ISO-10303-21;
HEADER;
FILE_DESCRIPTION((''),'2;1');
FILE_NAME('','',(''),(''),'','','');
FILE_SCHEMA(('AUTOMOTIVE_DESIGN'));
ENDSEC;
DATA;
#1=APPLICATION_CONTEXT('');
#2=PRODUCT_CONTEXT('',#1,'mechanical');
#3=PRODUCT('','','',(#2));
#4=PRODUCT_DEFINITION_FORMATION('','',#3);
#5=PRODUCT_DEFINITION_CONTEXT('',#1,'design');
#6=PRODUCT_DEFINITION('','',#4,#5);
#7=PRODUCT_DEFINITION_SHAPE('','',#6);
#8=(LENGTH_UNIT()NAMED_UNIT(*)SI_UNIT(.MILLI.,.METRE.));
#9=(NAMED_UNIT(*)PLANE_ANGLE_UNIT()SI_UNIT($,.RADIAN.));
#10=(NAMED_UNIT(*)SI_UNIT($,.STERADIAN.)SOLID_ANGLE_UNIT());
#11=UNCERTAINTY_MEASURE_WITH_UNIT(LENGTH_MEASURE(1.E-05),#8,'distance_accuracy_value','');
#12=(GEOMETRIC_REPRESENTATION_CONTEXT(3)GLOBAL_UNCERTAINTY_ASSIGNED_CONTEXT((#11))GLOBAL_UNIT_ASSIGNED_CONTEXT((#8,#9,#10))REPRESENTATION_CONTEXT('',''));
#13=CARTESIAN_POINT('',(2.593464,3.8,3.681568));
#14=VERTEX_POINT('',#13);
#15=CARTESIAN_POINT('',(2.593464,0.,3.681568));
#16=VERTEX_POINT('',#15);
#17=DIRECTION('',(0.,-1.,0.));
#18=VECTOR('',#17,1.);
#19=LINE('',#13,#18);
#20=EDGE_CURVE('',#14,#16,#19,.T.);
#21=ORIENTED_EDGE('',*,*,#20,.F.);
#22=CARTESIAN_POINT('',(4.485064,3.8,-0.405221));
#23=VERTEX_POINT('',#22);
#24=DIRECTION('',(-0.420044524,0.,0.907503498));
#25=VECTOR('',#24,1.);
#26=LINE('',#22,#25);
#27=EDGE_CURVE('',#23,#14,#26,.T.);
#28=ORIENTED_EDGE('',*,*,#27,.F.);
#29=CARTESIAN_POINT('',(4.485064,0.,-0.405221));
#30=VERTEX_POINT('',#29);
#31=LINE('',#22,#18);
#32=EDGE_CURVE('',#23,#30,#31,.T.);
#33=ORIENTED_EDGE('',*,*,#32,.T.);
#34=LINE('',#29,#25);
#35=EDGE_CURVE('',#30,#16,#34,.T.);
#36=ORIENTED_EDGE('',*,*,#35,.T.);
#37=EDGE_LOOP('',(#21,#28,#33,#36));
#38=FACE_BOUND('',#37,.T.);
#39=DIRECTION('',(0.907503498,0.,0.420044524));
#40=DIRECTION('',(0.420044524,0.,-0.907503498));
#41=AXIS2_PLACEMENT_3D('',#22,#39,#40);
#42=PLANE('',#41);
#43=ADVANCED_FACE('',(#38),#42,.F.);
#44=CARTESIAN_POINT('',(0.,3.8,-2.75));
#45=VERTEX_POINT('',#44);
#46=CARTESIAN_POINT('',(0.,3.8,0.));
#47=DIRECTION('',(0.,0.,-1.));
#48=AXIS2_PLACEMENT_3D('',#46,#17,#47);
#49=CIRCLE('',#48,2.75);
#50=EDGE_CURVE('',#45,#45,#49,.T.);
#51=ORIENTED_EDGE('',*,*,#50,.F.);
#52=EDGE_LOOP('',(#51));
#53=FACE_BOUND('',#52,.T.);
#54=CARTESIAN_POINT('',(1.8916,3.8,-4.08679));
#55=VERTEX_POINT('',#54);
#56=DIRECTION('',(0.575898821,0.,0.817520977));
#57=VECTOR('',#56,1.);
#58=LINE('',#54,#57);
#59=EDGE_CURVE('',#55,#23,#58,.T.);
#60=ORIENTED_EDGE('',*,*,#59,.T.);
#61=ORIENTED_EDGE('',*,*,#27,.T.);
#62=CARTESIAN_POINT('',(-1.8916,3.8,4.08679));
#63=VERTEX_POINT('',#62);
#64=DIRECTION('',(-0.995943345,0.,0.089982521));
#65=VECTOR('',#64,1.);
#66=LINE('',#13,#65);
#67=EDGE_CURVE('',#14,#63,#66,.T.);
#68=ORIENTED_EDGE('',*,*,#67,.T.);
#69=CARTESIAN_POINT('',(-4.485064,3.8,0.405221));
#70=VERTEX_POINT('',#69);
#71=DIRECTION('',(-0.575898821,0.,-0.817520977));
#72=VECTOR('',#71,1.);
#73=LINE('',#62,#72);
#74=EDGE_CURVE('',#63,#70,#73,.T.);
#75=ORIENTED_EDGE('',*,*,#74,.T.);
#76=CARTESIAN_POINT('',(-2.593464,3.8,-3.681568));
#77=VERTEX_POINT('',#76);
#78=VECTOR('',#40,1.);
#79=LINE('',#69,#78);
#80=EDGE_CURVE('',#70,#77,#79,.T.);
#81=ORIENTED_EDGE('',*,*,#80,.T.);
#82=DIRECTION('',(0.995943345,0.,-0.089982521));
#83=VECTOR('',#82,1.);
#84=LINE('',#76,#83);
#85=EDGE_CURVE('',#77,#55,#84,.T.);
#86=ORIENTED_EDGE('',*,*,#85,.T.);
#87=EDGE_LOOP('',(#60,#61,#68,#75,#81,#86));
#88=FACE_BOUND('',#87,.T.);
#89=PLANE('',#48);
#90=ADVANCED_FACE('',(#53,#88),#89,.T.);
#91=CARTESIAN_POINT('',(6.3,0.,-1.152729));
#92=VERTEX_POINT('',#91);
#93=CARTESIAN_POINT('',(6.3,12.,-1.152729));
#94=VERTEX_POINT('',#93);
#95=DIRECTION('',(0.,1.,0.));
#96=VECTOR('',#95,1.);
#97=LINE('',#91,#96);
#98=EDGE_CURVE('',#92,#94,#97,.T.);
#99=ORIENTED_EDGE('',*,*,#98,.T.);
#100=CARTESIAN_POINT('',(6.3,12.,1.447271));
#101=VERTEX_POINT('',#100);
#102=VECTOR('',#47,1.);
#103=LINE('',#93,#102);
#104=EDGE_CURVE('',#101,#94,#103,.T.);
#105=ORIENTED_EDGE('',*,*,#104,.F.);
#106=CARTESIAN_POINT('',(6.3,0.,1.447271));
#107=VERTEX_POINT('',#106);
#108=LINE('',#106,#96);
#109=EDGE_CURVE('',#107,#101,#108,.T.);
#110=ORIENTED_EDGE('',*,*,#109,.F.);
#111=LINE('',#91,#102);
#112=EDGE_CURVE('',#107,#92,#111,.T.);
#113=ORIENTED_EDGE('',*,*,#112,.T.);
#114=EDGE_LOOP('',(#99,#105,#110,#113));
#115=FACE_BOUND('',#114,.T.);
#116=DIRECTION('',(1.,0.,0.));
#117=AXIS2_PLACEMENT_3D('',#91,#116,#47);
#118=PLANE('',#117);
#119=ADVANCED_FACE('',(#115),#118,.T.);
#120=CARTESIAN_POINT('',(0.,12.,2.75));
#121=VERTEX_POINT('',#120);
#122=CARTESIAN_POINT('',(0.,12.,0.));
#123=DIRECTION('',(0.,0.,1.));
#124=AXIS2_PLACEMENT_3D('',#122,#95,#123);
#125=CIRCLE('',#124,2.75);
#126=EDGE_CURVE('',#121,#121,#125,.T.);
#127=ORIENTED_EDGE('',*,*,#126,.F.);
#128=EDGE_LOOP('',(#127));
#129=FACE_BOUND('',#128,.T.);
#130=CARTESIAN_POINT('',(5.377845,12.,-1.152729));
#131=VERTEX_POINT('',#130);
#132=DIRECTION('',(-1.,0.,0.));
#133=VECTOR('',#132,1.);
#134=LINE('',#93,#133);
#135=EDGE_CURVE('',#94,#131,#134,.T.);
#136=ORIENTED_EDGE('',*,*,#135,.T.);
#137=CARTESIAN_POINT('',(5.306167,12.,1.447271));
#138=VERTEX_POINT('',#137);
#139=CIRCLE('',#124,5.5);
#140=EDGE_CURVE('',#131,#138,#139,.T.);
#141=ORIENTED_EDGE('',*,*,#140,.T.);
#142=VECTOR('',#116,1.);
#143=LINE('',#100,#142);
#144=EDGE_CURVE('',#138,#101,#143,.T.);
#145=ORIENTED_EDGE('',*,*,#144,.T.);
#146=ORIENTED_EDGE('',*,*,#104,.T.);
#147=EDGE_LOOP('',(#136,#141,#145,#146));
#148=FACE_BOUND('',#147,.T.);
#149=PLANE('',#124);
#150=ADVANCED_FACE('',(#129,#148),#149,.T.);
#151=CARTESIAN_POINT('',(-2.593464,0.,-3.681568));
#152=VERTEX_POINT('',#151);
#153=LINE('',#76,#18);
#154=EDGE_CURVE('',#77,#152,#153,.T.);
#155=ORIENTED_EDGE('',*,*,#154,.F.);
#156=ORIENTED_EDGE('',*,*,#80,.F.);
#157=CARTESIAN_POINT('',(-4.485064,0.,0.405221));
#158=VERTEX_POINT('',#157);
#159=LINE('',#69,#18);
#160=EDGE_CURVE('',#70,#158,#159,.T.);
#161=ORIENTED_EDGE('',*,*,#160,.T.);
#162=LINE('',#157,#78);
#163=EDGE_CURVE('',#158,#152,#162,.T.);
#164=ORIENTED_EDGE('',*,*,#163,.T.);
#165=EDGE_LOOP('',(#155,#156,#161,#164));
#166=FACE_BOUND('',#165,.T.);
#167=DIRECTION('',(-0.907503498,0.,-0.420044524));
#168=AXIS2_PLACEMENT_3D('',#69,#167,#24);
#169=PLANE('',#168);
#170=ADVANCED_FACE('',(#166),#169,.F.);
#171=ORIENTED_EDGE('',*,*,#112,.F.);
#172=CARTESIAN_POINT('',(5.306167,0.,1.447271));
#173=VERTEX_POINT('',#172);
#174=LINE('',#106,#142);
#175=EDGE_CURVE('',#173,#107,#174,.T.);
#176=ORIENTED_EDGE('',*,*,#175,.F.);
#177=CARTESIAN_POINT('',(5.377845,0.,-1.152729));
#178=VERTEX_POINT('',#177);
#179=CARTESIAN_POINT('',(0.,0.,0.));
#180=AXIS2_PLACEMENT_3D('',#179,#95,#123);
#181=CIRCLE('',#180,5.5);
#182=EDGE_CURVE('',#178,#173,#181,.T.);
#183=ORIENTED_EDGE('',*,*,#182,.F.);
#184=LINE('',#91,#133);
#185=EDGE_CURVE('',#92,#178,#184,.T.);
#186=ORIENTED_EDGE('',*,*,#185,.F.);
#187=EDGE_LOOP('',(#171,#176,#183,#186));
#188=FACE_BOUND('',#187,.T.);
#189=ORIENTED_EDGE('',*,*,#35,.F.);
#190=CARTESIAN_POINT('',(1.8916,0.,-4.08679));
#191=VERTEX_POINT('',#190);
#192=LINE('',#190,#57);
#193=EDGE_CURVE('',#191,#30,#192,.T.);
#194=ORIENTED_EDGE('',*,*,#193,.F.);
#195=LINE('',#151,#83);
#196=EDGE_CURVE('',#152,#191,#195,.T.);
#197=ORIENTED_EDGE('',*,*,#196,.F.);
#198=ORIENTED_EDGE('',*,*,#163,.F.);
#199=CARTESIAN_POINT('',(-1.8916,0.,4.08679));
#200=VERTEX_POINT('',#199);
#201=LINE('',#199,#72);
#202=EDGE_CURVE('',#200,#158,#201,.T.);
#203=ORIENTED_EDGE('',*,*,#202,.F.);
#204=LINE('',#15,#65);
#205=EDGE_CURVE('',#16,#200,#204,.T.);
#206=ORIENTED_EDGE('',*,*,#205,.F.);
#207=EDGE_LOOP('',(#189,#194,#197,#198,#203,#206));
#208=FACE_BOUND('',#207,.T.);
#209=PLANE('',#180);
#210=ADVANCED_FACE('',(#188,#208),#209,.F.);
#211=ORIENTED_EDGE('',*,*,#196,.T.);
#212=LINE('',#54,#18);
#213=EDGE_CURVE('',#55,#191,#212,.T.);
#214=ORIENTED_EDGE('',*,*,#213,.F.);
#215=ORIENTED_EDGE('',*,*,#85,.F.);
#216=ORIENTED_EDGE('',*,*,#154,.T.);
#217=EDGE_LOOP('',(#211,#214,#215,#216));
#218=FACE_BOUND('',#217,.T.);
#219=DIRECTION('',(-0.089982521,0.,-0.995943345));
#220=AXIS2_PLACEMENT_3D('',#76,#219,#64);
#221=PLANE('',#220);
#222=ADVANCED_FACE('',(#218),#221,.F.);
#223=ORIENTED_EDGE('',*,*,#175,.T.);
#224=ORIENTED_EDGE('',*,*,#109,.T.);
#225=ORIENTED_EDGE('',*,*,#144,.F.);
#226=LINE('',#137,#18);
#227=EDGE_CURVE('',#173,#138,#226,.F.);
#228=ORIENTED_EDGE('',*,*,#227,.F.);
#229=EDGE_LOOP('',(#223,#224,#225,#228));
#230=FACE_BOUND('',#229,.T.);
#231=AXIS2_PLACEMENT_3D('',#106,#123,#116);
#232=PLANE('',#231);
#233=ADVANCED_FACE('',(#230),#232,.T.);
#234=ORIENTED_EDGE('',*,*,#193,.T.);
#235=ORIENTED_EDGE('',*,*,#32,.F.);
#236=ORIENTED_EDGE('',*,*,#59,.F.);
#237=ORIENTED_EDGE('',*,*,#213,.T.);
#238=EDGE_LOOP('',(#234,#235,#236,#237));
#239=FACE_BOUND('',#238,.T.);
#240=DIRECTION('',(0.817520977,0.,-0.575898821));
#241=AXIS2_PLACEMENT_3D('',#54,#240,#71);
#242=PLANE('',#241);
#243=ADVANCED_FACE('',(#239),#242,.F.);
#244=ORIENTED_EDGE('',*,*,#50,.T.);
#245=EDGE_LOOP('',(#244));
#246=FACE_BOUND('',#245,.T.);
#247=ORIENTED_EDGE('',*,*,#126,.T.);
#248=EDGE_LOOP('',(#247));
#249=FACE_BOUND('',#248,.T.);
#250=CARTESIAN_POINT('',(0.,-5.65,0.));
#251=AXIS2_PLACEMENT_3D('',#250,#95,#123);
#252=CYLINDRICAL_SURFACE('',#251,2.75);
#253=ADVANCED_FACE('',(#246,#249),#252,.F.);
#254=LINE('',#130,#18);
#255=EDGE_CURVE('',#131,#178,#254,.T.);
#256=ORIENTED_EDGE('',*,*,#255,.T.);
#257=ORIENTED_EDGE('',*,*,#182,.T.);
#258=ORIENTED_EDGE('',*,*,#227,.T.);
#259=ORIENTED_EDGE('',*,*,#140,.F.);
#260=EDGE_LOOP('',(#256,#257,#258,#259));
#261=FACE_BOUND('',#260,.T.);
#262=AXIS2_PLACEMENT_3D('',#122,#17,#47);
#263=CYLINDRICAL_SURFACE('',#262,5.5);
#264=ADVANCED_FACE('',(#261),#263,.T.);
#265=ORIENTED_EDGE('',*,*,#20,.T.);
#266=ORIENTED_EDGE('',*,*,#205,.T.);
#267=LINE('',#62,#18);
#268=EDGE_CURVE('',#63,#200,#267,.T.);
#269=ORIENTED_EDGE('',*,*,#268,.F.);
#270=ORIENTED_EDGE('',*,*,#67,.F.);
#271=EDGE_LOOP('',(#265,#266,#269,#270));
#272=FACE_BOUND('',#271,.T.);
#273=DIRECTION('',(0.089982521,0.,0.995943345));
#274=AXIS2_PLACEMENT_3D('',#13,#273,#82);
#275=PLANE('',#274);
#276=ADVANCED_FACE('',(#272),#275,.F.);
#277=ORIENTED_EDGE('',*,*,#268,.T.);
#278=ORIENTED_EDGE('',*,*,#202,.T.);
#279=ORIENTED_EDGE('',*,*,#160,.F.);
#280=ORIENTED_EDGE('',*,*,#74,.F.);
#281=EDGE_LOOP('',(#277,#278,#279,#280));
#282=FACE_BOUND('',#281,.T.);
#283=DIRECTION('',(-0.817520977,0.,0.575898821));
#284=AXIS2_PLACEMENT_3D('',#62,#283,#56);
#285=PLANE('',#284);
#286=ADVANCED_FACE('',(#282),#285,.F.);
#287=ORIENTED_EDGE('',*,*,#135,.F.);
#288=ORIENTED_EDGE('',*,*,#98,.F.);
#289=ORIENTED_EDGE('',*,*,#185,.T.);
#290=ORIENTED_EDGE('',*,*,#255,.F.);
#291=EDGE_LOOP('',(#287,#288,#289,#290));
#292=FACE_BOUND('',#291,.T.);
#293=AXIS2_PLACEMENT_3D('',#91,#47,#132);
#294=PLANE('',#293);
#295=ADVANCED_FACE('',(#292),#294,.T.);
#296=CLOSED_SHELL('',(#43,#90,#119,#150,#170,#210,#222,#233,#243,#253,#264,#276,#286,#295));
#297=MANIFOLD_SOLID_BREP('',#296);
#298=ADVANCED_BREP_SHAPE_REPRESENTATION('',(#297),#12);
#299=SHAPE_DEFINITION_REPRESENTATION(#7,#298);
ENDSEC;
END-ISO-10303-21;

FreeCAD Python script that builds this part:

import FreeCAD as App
import Part
import Sketcher
from FreeCAD import Vector
Q = App.Units.Quantity

doc = App.newDocument("Part")
params = doc.addObject("Spreadsheet::Sheet", "Params")
for row, (alias, value) in enumerate([
    ("sketch1_diameter", "11 mm"),
    ("pad1_length", "12 mm"),
    ("sketch2_width", "3 mm"),
    ("sketch2_height", "2.6 mm"),
    ("pad2_length", "12 mm"),
    ("pocket1_length", "3.8 mm"),
    ("sketch4_diameter", "5.5 mm"),
    ("pocket2_length", "17.65 mm"),
], start=1):
    params.set(f"A{row}", alias)
    params.set(f"B{row}", "=" + value)
    params.setAlias(f"B{row}", alias)

body = doc.addObject("PartDesign::Body", "Body")

# Sketch on XZ plane
sketch1 = body.newObject("Sketcher::SketchObject", "Sketch")
sketch1.AttachmentSupport = (doc.getObject("XZ_Plane"), [""])
sketch1.MapMode = "FlatFace"
sketch1.addGeometry(Part.Circle(Vector(0, 0, 0), Vector(0, 0, 1), 6), False)
sketch1.addConstraint([
    Sketcher.Constraint("Coincident", 0, 3, -1, 1),
    Sketcher.Constraint("Diameter", 0, Q("11 mm")),
])
sketch1.setExpression("Constraints[1]", "Params.sketch1_diameter")
pad1 = body.newObject("PartDesign::Pad", "Pad")
pad1.Profile = sketch1
pad1.setExpression("Length", "Params.pad1_length")
pad1.Reversed = True

# Sketch on XZ plane
sketch2 = body.newObject("Sketcher::SketchObject", "Sketch001")
sketch2.AttachmentSupport = (doc.getObject("XZ_Plane"), [""])
sketch2.MapMode = "FlatFace"
sketch2.AttachmentOffset = App.Placement(Vector(0, 0, -12), App.Rotation())
sketch2.addGeometry([
    Part.LineSegment(Vector(3.3, -1.2, 0), Vector(3.3, 1.4, 0)),
    Part.LineSegment(Vector(3.3, 1.4, 0), Vector(6.3, 1.4, 0)),
    Part.LineSegment(Vector(6.3, 1.4, 0), Vector(6.3, -1.2, 0)),
    Part.LineSegment(Vector(6.3, -1.2, 0), Vector(3.3, -1.2, 0)),
], False)
sketch2.addConstraint([
    Sketcher.Constraint("Coincident", 0, 2, 1, 1),
    Sketcher.Constraint("Coincident", 1, 2, 2, 1),
    Sketcher.Constraint("Coincident", 2, 2, 3, 1),
    Sketcher.Constraint("Coincident", 3, 2, 0, 1),
    Sketcher.Constraint("Vertical", 0),
    Sketcher.Constraint("Horizontal", 1),
    Sketcher.Constraint("Vertical", 2),
    Sketcher.Constraint("Horizontal", 3),
    Sketcher.Constraint("DistanceX", 1, 1, 1, 2, Q("3 mm")),
    Sketcher.Constraint("DistanceY", 0, 1, 0, 2, Q("2.6 mm")),
    Sketcher.Constraint("DistanceX", -1, 1, 0, 2, Q("3.3 mm")),
    Sketcher.Constraint("DistanceY", -1, 1, 0, 2, Q("1.447271 mm")),
])
sketch2.setExpression("Constraints[8]", "Params.sketch2_width")
sketch2.setExpression("Constraints[9]", "Params.sketch2_height")
pad2 = body.newObject("PartDesign::Pad", "Pad001")
pad2.Profile = sketch2
pad2.setExpression("Length", "Params.pad2_length")

# Sketch on XZ plane
sketch3 = body.newObject("Sketcher::SketchObject", "Sketch002")
sketch3.AttachmentSupport = (doc.getObject("XZ_Plane"), [""])
sketch3.MapMode = "FlatFace"
sketch3.addGeometry([
    Part.LineSegment(Vector(1.9, -4.1, 0), Vector(4.5, -0.4, 0)),  # 0
    Part.LineSegment(Vector(4.5, -0.4, 0), Vector(2.6, 3.7, 0)),  # 1
    Part.LineSegment(Vector(2.6, 3.7, 0), Vector(-1.9, 4.1, 0)),  # 2
    Part.LineSegment(Vector(-1.9, 4.1, 0), Vector(-4.5, 0.4, 0)),  # 3
    Part.LineSegment(Vector(-4.5, 0.4, 0), Vector(-2.6, -3.7, 0)),  # 4
    Part.LineSegment(Vector(-2.6, -3.7, 0), Vector(1.9, -4.1, 0)),  # 5
], False)
sketch3.addConstraint([
    Sketcher.Constraint("Coincident", 0, 2, 1, 1),
    Sketcher.Constraint("Coincident", 1, 2, 2, 1),
    Sketcher.Constraint("Coincident", 2, 2, 3, 1),
    Sketcher.Constraint("Coincident", 3, 2, 4, 1),
    Sketcher.Constraint("Coincident", 4, 2, 5, 1),
    Sketcher.Constraint("Coincident", 5, 2, 0, 1),
    Sketcher.Constraint("Symmetric", 0, 2, 3, 2, -1, 1),
    Sketcher.Constraint("Symmetric", 1, 2, 4, 2, -1, 1),
    Sketcher.Constraint("Symmetric", 2, 2, 5, 2, -1, 1),
    Sketcher.Constraint("Equal", 0, 1),
    Sketcher.Constraint("Equal", 1, 2),
    Sketcher.Constraint("DistanceX", 2, 2, -1, 1, Q("1.8916 mm")),
    Sketcher.Constraint("DistanceX", 1, 2, 0, 2, Q("1.8916 mm")),
    Sketcher.Constraint("DistanceY", 0, 2, -1, 1, Q("0.405221 mm")),
    Sketcher.Constraint("DistanceY", -1, 1, 1, 2, Q("3.681568 mm")),
])
pocket1 = body.newObject("PartDesign::Pocket", "Pocket")
pocket1.Profile = sketch3
pocket1.setExpression("Length", "Params.pocket1_length")

# Sketch on XZ plane
sketch4 = body.newObject("Sketcher::SketchObject", "Sketch003")
sketch4.AttachmentSupport = (doc.getObject("XZ_Plane"), [""])
sketch4.MapMode = "FlatFace"
sketch4.AttachmentOffset = App.Placement(Vector(0, 0, -12), App.Rotation())
sketch4.addGeometry(Part.Circle(Vector(0, 0, 0), Vector(0, 0, 1), 2.8), False)
sketch4.addConstraint([
    Sketcher.Constraint("Coincident", 0, 3, -1, 1),
    Sketcher.Constraint("Diameter", 0, Q("5.5 mm")),
])
sketch4.setExpression("Constraints[1]", "Params.sketch4_diameter")
pocket2 = body.newObject("PartDesign::Pocket", "Pocket001")
pocket2.Profile = sketch4
pocket2.setExpression("Length", "Params.pocket2_length")
pocket2.Reversed = True

doc.recompute()
